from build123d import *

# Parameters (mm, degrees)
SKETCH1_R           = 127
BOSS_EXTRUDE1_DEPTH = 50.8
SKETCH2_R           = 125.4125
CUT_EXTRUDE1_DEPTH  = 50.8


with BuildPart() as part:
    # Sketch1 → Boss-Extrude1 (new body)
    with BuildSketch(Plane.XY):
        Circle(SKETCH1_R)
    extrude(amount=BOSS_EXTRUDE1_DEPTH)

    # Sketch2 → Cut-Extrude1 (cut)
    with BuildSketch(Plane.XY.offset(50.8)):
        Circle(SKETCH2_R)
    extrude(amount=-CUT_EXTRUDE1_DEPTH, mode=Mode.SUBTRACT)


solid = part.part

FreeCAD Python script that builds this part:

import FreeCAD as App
import Part
import Sketcher

V = App.Vector
Q = App.Units.Quantity

doc = App.newDocument("Part")
body = doc.addObject("PartDesign::Body", "Body")

# Sketch on XY plane
sketch1 = body.newObject("Sketcher::SketchObject", "Sketch")
sketch1.AttachmentSupport = (doc.getObject("XY_Plane"), [""])
sketch1.MapMode = "FlatFace"
sketch1.addGeometry(Part.Circle(V(0, 0, 0), V(0, 0, 1), 127), False)
sketch1.addConstraint([
    Sketcher.Constraint("Coincident", 0, 3, -1, 1),
    Sketcher.Constraint("Diameter", 0, Q("10 in")),
])
pad1 = body.newObject("PartDesign::Pad", "Pad")
pad1.Profile = sketch1
pad1.Length = Q("2 in")

# Sketch on XY plane
sketch2 = body.newObject("Sketcher::SketchObject", "Sketch001")
sketch2.AttachmentSupport = (doc.getObject("XY_Plane"), [""])
sketch2.MapMode = "FlatFace"
sketch2.AttachmentOffset = App.Placement(V(0, 0, 2 * 25.4), App.Rotation())
sketch2.addGeometry(Part.Circle(V(0, 0, 0), V(0, 0, 1), 125), False)
sketch2.addConstraint([
    Sketcher.Constraint("Coincident", 0, 3, -1, 1),
    Sketcher.Constraint("Diameter", 0, Q("9.875 in")),
])
pocket1 = body.newObject("PartDesign::Pocket", "Pocket")
pocket1.Profile = sketch2
pocket1.Length = Q("2 in")

doc.recompute()
